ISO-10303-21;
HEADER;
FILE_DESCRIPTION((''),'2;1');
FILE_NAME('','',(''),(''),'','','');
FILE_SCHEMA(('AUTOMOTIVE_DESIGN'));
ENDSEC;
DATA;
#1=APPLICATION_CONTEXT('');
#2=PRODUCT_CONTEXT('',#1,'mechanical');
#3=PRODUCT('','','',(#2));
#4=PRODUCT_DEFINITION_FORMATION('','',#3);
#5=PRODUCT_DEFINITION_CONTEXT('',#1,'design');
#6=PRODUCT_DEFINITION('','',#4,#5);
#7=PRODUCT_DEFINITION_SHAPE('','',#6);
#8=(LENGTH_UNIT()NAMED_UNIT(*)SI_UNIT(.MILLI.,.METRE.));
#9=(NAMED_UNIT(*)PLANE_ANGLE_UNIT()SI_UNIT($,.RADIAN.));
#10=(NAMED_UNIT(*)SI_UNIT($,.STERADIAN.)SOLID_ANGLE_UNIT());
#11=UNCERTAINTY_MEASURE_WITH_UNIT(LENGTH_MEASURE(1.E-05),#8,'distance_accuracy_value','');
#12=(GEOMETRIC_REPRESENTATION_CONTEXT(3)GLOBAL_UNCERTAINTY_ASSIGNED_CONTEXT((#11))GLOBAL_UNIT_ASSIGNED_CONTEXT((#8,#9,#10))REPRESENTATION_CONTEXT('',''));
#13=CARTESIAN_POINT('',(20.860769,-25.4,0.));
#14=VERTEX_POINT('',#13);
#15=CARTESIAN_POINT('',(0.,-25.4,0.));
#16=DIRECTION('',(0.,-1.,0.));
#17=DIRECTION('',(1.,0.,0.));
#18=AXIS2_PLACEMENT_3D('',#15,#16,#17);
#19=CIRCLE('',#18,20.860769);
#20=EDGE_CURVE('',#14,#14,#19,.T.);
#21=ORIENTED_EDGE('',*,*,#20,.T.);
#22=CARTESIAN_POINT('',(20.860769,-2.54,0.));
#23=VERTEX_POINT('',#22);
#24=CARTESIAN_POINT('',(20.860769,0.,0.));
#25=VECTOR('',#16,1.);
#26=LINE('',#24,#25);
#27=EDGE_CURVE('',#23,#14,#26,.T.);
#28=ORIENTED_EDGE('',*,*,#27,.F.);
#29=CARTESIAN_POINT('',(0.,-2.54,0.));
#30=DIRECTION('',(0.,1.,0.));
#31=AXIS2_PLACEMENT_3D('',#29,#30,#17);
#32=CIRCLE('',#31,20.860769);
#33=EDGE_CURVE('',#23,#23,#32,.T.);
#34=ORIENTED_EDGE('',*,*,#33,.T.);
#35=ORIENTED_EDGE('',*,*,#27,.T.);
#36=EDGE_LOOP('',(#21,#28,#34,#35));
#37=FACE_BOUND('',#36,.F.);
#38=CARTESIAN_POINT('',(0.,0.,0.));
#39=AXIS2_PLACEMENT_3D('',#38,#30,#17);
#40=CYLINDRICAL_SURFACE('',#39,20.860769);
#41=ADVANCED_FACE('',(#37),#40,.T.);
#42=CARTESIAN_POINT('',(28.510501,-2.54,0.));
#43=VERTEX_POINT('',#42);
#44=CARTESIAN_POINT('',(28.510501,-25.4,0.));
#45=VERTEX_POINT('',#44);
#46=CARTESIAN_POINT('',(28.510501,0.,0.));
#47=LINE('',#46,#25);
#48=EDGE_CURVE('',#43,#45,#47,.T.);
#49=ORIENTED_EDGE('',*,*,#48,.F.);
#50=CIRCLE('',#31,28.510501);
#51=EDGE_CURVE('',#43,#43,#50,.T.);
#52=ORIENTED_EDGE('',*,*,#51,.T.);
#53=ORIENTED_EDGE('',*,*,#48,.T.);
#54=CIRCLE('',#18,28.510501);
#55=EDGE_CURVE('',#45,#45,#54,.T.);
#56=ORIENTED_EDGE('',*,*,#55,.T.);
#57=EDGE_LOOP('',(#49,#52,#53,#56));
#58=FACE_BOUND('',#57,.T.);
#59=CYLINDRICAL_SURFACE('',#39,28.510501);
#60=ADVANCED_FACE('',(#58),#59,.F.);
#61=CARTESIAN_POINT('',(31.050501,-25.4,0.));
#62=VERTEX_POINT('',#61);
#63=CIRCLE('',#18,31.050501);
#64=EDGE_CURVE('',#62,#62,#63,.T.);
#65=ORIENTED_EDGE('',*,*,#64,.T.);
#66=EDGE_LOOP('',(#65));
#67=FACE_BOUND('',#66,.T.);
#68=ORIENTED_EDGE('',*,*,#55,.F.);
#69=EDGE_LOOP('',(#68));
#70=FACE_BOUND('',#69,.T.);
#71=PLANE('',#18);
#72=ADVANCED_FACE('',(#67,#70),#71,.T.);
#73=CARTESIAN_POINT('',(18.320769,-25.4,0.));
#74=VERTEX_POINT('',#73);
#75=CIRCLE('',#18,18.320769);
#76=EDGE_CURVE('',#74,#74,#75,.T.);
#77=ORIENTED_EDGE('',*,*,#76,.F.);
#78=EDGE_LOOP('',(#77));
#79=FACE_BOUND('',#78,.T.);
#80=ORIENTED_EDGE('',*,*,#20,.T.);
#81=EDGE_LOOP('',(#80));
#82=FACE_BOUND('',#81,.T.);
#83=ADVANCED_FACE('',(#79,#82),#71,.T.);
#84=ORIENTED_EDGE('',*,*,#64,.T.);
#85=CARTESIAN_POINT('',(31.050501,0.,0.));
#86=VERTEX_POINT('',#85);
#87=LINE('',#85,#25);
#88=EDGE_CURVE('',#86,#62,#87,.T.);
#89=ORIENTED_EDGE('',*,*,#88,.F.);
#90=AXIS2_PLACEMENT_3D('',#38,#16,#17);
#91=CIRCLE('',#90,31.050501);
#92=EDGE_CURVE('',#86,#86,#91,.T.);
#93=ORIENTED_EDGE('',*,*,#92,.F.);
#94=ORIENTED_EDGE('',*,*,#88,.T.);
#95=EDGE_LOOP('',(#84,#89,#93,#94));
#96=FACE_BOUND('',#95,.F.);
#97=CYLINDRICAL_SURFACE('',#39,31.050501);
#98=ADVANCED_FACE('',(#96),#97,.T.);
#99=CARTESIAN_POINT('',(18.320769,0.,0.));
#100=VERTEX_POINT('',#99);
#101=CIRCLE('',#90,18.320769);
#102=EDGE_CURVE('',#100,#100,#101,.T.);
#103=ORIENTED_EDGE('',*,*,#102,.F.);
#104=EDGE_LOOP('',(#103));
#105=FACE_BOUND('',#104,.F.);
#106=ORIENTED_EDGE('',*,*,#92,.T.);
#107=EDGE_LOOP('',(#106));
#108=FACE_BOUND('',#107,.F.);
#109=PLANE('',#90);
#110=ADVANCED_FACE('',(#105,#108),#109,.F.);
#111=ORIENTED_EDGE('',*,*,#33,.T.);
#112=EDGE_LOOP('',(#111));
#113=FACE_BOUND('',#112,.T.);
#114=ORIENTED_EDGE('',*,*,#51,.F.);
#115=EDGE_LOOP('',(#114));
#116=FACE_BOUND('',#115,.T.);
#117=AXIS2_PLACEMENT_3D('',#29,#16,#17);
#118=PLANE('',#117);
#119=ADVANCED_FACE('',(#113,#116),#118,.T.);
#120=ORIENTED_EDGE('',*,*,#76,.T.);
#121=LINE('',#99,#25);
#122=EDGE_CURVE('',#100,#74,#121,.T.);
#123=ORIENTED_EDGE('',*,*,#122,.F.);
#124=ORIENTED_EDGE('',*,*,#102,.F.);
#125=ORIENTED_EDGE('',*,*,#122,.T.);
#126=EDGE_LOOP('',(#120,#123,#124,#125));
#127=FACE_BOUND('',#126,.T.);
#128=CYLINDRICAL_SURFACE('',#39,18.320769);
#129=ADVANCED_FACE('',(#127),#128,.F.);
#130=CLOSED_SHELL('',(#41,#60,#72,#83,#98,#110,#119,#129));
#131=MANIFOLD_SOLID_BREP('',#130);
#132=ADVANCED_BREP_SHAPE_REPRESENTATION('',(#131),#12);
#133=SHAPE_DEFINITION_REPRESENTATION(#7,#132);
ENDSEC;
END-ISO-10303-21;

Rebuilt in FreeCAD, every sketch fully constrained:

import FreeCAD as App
import Part
import Sketcher
from FreeCAD import Vector
Q = App.Units.Quantity


def faces_at(feature, points):
    """Names of the faces that lie closest to the given points."""
    faces = feature.Shape.Faces
    near = lambda p: min(range(len(faces)), key=lambda i: faces[i].distToShape(Part.Vertex(*p))[0])
    return sorted({f"Face{near(p) + 1}" for p in points})

doc = App.newDocument("Part")
body = doc.addObject("PartDesign::Body", "Body")

# Sketch on XZ plane
sketch1 = doc.addObject("Sketcher::SketchObject", "Sketch")
body.addObject(sketch1)
sketch1.AttachmentSupport = (doc.XZ_Plane, [""])
sketch1.MapMode = "FlatFace"
sketch1.addGeometry(Part.Circle(Vector(0, 0, 0), Vector(0, 0, 1), 31), False)
sketch1.addGeometry(Part.Circle(Vector(0, 0, 0), Vector(0, 0, 1), 18), False)
sketch1.addConstraint(Sketcher.Constraint("Coincident", 0, 3, -1, 1))
sketch1.addConstraint(Sketcher.Constraint("Coincident", 1, 3, -1, 1))
sketch1.addConstraint(Sketcher.Constraint("Diameter", 0, 62.101002))
sketch1.addConstraint(Sketcher.Constraint("Diameter", 1, 36.641538))
pad1 = doc.addObject("PartDesign::Pad", "Pad")
body.addObject(pad1)
pad1.Profile = sketch1
pad1.Length = Q("1 in")
doc.recompute()

thickness = doc.addObject("PartDesign::Thickness", "Thickness")
body.addObject(thickness)
thickness.Base = (pad1, faces_at(pad1, [(-24.84, -25.4, 0)]))
thickness.Value = Q("0.1 in")
thickness.Reversed = True
thickness.Join = "Arc"

doc.recompute()
